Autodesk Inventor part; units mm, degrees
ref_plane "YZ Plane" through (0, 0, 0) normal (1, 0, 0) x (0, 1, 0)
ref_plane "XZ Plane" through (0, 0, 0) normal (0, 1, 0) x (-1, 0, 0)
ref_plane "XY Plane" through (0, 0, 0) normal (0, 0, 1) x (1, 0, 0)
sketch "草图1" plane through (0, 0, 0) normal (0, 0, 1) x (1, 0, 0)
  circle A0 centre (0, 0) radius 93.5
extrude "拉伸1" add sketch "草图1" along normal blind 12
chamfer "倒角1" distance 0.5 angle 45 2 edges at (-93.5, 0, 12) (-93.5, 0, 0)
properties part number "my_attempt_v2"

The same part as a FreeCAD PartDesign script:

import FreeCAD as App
import Part
import Sketcher
from FreeCAD import Vector
Q = App.Units.Quantity


def edges_at(feature, points):
    """Names of the edges that pass closest to the given points."""
    edges = feature.Shape.Edges
    near = lambda p: min(range(len(edges)), key=lambda i: edges[i].distToShape(Part.Vertex(*p))[0])
    return sorted({f"Edge{near(p) + 1}" for p in points})

doc = App.newDocument("Part")
body = doc.addObject("PartDesign::Body", "Body")

sketch1 = body.newObject("Sketcher::SketchObject", "Sketch")
sketch1.AttachmentSupport = (doc.getObject("XY_Plane"), [""])
sketch1.MapMode = "FlatFace"
sketch1.addGeometry(Part.Circle(Vector(0, 0, 0), Vector(0, 0, 1), 94), False)
sketch1.addConstraint(Sketcher.Constraint("Coincident", 0, 3, -1, 1))
sketch1.addConstraint(Sketcher.Constraint("Diameter", 0, Q("187 mm")))
pad1 = body.newObject("PartDesign::Pad", "Pad")
pad1.Profile = sketch1
pad1.Length = 12
doc.recompute()

chamfer = body.newObject("PartDesign::Chamfer", "Chamfer")
chamfer.Base = (pad1, edges_at(pad1, [(-93.5, 0, 12), (-93.5, 0, 0)]))
chamfer.Size = 0.5

doc.recompute()
